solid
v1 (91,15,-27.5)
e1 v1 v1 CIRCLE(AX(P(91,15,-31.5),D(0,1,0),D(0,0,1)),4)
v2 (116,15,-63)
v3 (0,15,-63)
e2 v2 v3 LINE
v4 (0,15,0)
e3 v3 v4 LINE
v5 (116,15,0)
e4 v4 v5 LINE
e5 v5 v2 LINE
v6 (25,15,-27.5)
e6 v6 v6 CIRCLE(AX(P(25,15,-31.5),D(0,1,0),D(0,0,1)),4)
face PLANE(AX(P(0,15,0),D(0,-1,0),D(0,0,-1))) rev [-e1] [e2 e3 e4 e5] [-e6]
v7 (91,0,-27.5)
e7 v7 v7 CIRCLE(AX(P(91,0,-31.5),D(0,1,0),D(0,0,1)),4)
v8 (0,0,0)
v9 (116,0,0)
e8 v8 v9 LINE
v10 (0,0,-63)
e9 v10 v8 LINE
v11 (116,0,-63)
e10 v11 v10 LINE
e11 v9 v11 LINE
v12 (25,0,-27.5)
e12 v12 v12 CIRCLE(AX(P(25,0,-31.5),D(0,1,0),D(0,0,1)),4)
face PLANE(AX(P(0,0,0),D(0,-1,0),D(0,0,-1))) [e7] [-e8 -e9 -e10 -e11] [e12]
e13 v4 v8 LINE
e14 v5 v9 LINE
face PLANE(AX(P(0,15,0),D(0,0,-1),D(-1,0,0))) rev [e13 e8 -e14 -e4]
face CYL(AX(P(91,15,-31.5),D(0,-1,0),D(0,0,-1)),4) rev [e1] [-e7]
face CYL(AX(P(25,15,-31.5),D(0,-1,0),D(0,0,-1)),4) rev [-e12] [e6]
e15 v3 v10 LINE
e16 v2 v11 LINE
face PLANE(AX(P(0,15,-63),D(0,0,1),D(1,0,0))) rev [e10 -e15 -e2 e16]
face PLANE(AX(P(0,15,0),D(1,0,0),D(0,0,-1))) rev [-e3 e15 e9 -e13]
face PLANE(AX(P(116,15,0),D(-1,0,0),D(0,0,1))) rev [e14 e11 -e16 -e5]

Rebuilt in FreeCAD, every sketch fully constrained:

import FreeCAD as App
import Part
import Sketcher

V = App.Vector
Q = App.Units.Quantity


def add_polygon(sketch, points):
    """Adds a closed chain of lines whose ends are joined by coincident constraints."""
    first, n = sketch.GeometryCount, len(points)
    for a, b in zip(points, points[1:] + points[:1]):
        sketch.addGeometry(Part.LineSegment(App.Vector(*a, 0), App.Vector(*b, 0)), False)
    for i in range(n):
        sketch.addConstraint(Sketcher.Constraint("Coincident", first + i, 2, first + (i + 1) % n, 1))

doc = App.newDocument("Part")
body = doc.addObject("PartDesign::Body", "Body")

# Sketch on XZ plane
sketch1 = body.newObject("Sketcher::SketchObject", "Sketch")
sketch1.AttachmentSupport = (doc.getObject("XZ_Plane"), [""])
sketch1.MapMode = "FlatFace"
add_polygon(sketch1, [(0, -63), (0, 0), (116, 0), (116, -63)])  # lines 0-3
sketch1.addGeometry(Part.Circle(V(25, -31.5, 0), V(0, 0, 1), 4), False)  # 4
sketch1.addGeometry(Part.Circle(V(91, -31.5, 0), V(0, 0, 1), 4), False)  # 5
sketch1.addConstraint([
    Sketcher.Constraint("Vertical", 0),
    Sketcher.Constraint("Horizontal", 1),
    Sketcher.Constraint("Vertical", 2),
    Sketcher.Constraint("Horizontal", 3),
    Sketcher.Constraint("Coincident", 0, 2, -1, 1),
    Sketcher.Constraint("Equal", 4, 5),
    Sketcher.Constraint("Horizontal", 4, 3, 5, 3),
    Sketcher.Constraint("Diameter", 4, Q("8 mm")),
    Sketcher.Constraint("DistanceX", 1, 1, 1, 2, Q("116 mm")),
    Sketcher.Constraint("DistanceY", 0, 1, 0, 2, Q("63 mm")),
    Sketcher.Constraint("DistanceX", -1, 1, 4, 3, Q("25 mm")),
    Sketcher.Constraint("DistanceX", -1, 1, 5, 3, Q("91 mm")),
    Sketcher.Constraint("DistanceY", 4, 3, -1, 1, Q("31.5 mm")),
])
pad1 = body.newObject("PartDesign::Pad", "Pad")
pad1.Profile = sketch1
pad1.Length = 15
pad1.Reversed = True

doc.recompute()
